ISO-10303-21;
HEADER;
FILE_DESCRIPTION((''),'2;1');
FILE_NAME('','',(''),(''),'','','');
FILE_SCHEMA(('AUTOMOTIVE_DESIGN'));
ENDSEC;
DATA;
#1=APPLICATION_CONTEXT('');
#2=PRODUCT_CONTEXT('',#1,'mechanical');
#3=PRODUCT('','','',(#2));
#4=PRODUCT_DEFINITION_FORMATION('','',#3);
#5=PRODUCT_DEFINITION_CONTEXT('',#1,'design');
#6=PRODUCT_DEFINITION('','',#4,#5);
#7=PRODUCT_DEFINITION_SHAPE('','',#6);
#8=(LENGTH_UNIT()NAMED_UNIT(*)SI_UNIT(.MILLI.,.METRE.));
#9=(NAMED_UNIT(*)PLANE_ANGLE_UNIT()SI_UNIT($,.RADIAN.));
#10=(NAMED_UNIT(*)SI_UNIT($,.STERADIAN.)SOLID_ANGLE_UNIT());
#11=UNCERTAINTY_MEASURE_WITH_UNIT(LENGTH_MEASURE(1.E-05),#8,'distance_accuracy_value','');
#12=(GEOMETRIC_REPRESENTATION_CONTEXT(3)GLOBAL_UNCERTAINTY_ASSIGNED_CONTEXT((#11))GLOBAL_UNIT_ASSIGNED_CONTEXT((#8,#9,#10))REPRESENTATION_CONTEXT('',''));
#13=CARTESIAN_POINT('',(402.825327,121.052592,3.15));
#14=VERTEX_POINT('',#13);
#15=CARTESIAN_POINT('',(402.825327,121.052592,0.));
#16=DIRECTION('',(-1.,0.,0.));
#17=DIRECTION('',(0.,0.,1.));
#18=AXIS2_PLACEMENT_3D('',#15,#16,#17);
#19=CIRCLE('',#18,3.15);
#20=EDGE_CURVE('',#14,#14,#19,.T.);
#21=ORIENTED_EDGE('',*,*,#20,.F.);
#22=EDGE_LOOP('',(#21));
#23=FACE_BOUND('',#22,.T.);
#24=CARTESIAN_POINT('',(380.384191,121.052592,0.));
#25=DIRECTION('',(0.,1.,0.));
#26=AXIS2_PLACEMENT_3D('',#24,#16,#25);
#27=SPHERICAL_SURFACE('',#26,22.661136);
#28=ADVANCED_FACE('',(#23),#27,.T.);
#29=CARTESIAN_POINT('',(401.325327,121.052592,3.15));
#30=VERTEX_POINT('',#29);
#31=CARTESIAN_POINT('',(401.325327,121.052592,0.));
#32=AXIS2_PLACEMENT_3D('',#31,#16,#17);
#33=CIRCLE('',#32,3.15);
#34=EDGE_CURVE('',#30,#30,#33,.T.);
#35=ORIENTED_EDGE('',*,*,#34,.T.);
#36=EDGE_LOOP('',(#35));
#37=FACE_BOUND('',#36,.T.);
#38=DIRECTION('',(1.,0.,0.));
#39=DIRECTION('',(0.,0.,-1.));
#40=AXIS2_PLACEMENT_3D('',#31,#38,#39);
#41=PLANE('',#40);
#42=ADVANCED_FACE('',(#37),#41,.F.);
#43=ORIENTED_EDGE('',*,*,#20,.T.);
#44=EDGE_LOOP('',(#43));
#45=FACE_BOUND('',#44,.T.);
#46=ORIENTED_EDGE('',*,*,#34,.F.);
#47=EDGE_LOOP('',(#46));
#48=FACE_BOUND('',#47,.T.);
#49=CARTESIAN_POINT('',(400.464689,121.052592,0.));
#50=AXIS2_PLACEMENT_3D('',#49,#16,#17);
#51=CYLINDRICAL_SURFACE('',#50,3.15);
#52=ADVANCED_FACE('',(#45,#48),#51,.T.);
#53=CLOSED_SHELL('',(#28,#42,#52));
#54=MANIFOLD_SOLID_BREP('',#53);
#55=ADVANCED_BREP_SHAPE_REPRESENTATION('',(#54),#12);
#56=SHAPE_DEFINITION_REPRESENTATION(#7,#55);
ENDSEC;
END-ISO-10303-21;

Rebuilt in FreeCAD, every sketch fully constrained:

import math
import FreeCAD as App
import Part
import Sketcher

doc = App.newDocument("Part")
body = doc.addObject("PartDesign::Body", "Body")

sketch1 = doc.addObject("Sketcher::SketchObject", "Sketch")
body.addObject(sketch1)
sketch1.AttachmentSupport = (doc.XY_Plane, [""])
sketch1.MapMode = "FlatFace"
sketch1.addGeometry([
    Part.LineSegment(App.Vector(401.325327, 124.202592, 0), App.Vector(401.325327, 121.052592, 0)),
    Part.LineSegment(App.Vector(401.325327, 121.052592, 0), App.Vector(403.045327, 121.052592, 0)),
    Part.ArcOfCircle(Part.Circle(App.Vector(380.384191, 121.052592, 0), App.Vector(0, 0, 1), 22.661136), math.radians(0), math.radians(7.990245)),
    Part.LineSegment(App.Vector(402.825327, 124.202592, 0), App.Vector(401.325327, 124.202592, 0)),
], False)
sketch1.addGeometry(Part.LineSegment(App.Vector(380.384191, 121.052592, 0), App.Vector(403.045327, 121.052592, 0)), True)
sketch1.addConstraint([
    Sketcher.Constraint("Coincident", 0, 2, 1, 1),
    Sketcher.Constraint("Coincident", 1, 2, 2, 1),
    Sketcher.Constraint("Coincident", 2, 2, 3, 1),
    Sketcher.Constraint("Coincident", 3, 2, 0, 1),
    Sketcher.Constraint("Vertical", 0),
    Sketcher.Constraint("Horizontal", 1),
    Sketcher.Constraint("Horizontal", 3),
    Sketcher.Constraint("Horizontal", 4),
    Sketcher.Constraint("Coincident", 4, 1, 2, 3),
    Sketcher.Constraint("Coincident", 4, 2, 1, 2),
    Sketcher.Constraint("DistanceX", 3, 2, 3, 1, 1.5),
    Sketcher.Constraint("DistanceX", 1, 1, 1, 2, 1.72),
    Sketcher.Constraint("DistanceY", 0, 2, 0, 1, 3.15),
    Sketcher.Constraint("DistanceX", -1, 1, 2, 3, 380.384191),
    Sketcher.Constraint("DistanceY", -1, 1, 2, 3, 121.052592),
])
revolution = doc.addObject("PartDesign::Revolution", "Revolution")
body.addObject(revolution)
revolution.Profile = sketch1
revolution.ReferenceAxis = (sketch1, ["Axis0"])
revolution.Angle = 360

doc.recompute()
